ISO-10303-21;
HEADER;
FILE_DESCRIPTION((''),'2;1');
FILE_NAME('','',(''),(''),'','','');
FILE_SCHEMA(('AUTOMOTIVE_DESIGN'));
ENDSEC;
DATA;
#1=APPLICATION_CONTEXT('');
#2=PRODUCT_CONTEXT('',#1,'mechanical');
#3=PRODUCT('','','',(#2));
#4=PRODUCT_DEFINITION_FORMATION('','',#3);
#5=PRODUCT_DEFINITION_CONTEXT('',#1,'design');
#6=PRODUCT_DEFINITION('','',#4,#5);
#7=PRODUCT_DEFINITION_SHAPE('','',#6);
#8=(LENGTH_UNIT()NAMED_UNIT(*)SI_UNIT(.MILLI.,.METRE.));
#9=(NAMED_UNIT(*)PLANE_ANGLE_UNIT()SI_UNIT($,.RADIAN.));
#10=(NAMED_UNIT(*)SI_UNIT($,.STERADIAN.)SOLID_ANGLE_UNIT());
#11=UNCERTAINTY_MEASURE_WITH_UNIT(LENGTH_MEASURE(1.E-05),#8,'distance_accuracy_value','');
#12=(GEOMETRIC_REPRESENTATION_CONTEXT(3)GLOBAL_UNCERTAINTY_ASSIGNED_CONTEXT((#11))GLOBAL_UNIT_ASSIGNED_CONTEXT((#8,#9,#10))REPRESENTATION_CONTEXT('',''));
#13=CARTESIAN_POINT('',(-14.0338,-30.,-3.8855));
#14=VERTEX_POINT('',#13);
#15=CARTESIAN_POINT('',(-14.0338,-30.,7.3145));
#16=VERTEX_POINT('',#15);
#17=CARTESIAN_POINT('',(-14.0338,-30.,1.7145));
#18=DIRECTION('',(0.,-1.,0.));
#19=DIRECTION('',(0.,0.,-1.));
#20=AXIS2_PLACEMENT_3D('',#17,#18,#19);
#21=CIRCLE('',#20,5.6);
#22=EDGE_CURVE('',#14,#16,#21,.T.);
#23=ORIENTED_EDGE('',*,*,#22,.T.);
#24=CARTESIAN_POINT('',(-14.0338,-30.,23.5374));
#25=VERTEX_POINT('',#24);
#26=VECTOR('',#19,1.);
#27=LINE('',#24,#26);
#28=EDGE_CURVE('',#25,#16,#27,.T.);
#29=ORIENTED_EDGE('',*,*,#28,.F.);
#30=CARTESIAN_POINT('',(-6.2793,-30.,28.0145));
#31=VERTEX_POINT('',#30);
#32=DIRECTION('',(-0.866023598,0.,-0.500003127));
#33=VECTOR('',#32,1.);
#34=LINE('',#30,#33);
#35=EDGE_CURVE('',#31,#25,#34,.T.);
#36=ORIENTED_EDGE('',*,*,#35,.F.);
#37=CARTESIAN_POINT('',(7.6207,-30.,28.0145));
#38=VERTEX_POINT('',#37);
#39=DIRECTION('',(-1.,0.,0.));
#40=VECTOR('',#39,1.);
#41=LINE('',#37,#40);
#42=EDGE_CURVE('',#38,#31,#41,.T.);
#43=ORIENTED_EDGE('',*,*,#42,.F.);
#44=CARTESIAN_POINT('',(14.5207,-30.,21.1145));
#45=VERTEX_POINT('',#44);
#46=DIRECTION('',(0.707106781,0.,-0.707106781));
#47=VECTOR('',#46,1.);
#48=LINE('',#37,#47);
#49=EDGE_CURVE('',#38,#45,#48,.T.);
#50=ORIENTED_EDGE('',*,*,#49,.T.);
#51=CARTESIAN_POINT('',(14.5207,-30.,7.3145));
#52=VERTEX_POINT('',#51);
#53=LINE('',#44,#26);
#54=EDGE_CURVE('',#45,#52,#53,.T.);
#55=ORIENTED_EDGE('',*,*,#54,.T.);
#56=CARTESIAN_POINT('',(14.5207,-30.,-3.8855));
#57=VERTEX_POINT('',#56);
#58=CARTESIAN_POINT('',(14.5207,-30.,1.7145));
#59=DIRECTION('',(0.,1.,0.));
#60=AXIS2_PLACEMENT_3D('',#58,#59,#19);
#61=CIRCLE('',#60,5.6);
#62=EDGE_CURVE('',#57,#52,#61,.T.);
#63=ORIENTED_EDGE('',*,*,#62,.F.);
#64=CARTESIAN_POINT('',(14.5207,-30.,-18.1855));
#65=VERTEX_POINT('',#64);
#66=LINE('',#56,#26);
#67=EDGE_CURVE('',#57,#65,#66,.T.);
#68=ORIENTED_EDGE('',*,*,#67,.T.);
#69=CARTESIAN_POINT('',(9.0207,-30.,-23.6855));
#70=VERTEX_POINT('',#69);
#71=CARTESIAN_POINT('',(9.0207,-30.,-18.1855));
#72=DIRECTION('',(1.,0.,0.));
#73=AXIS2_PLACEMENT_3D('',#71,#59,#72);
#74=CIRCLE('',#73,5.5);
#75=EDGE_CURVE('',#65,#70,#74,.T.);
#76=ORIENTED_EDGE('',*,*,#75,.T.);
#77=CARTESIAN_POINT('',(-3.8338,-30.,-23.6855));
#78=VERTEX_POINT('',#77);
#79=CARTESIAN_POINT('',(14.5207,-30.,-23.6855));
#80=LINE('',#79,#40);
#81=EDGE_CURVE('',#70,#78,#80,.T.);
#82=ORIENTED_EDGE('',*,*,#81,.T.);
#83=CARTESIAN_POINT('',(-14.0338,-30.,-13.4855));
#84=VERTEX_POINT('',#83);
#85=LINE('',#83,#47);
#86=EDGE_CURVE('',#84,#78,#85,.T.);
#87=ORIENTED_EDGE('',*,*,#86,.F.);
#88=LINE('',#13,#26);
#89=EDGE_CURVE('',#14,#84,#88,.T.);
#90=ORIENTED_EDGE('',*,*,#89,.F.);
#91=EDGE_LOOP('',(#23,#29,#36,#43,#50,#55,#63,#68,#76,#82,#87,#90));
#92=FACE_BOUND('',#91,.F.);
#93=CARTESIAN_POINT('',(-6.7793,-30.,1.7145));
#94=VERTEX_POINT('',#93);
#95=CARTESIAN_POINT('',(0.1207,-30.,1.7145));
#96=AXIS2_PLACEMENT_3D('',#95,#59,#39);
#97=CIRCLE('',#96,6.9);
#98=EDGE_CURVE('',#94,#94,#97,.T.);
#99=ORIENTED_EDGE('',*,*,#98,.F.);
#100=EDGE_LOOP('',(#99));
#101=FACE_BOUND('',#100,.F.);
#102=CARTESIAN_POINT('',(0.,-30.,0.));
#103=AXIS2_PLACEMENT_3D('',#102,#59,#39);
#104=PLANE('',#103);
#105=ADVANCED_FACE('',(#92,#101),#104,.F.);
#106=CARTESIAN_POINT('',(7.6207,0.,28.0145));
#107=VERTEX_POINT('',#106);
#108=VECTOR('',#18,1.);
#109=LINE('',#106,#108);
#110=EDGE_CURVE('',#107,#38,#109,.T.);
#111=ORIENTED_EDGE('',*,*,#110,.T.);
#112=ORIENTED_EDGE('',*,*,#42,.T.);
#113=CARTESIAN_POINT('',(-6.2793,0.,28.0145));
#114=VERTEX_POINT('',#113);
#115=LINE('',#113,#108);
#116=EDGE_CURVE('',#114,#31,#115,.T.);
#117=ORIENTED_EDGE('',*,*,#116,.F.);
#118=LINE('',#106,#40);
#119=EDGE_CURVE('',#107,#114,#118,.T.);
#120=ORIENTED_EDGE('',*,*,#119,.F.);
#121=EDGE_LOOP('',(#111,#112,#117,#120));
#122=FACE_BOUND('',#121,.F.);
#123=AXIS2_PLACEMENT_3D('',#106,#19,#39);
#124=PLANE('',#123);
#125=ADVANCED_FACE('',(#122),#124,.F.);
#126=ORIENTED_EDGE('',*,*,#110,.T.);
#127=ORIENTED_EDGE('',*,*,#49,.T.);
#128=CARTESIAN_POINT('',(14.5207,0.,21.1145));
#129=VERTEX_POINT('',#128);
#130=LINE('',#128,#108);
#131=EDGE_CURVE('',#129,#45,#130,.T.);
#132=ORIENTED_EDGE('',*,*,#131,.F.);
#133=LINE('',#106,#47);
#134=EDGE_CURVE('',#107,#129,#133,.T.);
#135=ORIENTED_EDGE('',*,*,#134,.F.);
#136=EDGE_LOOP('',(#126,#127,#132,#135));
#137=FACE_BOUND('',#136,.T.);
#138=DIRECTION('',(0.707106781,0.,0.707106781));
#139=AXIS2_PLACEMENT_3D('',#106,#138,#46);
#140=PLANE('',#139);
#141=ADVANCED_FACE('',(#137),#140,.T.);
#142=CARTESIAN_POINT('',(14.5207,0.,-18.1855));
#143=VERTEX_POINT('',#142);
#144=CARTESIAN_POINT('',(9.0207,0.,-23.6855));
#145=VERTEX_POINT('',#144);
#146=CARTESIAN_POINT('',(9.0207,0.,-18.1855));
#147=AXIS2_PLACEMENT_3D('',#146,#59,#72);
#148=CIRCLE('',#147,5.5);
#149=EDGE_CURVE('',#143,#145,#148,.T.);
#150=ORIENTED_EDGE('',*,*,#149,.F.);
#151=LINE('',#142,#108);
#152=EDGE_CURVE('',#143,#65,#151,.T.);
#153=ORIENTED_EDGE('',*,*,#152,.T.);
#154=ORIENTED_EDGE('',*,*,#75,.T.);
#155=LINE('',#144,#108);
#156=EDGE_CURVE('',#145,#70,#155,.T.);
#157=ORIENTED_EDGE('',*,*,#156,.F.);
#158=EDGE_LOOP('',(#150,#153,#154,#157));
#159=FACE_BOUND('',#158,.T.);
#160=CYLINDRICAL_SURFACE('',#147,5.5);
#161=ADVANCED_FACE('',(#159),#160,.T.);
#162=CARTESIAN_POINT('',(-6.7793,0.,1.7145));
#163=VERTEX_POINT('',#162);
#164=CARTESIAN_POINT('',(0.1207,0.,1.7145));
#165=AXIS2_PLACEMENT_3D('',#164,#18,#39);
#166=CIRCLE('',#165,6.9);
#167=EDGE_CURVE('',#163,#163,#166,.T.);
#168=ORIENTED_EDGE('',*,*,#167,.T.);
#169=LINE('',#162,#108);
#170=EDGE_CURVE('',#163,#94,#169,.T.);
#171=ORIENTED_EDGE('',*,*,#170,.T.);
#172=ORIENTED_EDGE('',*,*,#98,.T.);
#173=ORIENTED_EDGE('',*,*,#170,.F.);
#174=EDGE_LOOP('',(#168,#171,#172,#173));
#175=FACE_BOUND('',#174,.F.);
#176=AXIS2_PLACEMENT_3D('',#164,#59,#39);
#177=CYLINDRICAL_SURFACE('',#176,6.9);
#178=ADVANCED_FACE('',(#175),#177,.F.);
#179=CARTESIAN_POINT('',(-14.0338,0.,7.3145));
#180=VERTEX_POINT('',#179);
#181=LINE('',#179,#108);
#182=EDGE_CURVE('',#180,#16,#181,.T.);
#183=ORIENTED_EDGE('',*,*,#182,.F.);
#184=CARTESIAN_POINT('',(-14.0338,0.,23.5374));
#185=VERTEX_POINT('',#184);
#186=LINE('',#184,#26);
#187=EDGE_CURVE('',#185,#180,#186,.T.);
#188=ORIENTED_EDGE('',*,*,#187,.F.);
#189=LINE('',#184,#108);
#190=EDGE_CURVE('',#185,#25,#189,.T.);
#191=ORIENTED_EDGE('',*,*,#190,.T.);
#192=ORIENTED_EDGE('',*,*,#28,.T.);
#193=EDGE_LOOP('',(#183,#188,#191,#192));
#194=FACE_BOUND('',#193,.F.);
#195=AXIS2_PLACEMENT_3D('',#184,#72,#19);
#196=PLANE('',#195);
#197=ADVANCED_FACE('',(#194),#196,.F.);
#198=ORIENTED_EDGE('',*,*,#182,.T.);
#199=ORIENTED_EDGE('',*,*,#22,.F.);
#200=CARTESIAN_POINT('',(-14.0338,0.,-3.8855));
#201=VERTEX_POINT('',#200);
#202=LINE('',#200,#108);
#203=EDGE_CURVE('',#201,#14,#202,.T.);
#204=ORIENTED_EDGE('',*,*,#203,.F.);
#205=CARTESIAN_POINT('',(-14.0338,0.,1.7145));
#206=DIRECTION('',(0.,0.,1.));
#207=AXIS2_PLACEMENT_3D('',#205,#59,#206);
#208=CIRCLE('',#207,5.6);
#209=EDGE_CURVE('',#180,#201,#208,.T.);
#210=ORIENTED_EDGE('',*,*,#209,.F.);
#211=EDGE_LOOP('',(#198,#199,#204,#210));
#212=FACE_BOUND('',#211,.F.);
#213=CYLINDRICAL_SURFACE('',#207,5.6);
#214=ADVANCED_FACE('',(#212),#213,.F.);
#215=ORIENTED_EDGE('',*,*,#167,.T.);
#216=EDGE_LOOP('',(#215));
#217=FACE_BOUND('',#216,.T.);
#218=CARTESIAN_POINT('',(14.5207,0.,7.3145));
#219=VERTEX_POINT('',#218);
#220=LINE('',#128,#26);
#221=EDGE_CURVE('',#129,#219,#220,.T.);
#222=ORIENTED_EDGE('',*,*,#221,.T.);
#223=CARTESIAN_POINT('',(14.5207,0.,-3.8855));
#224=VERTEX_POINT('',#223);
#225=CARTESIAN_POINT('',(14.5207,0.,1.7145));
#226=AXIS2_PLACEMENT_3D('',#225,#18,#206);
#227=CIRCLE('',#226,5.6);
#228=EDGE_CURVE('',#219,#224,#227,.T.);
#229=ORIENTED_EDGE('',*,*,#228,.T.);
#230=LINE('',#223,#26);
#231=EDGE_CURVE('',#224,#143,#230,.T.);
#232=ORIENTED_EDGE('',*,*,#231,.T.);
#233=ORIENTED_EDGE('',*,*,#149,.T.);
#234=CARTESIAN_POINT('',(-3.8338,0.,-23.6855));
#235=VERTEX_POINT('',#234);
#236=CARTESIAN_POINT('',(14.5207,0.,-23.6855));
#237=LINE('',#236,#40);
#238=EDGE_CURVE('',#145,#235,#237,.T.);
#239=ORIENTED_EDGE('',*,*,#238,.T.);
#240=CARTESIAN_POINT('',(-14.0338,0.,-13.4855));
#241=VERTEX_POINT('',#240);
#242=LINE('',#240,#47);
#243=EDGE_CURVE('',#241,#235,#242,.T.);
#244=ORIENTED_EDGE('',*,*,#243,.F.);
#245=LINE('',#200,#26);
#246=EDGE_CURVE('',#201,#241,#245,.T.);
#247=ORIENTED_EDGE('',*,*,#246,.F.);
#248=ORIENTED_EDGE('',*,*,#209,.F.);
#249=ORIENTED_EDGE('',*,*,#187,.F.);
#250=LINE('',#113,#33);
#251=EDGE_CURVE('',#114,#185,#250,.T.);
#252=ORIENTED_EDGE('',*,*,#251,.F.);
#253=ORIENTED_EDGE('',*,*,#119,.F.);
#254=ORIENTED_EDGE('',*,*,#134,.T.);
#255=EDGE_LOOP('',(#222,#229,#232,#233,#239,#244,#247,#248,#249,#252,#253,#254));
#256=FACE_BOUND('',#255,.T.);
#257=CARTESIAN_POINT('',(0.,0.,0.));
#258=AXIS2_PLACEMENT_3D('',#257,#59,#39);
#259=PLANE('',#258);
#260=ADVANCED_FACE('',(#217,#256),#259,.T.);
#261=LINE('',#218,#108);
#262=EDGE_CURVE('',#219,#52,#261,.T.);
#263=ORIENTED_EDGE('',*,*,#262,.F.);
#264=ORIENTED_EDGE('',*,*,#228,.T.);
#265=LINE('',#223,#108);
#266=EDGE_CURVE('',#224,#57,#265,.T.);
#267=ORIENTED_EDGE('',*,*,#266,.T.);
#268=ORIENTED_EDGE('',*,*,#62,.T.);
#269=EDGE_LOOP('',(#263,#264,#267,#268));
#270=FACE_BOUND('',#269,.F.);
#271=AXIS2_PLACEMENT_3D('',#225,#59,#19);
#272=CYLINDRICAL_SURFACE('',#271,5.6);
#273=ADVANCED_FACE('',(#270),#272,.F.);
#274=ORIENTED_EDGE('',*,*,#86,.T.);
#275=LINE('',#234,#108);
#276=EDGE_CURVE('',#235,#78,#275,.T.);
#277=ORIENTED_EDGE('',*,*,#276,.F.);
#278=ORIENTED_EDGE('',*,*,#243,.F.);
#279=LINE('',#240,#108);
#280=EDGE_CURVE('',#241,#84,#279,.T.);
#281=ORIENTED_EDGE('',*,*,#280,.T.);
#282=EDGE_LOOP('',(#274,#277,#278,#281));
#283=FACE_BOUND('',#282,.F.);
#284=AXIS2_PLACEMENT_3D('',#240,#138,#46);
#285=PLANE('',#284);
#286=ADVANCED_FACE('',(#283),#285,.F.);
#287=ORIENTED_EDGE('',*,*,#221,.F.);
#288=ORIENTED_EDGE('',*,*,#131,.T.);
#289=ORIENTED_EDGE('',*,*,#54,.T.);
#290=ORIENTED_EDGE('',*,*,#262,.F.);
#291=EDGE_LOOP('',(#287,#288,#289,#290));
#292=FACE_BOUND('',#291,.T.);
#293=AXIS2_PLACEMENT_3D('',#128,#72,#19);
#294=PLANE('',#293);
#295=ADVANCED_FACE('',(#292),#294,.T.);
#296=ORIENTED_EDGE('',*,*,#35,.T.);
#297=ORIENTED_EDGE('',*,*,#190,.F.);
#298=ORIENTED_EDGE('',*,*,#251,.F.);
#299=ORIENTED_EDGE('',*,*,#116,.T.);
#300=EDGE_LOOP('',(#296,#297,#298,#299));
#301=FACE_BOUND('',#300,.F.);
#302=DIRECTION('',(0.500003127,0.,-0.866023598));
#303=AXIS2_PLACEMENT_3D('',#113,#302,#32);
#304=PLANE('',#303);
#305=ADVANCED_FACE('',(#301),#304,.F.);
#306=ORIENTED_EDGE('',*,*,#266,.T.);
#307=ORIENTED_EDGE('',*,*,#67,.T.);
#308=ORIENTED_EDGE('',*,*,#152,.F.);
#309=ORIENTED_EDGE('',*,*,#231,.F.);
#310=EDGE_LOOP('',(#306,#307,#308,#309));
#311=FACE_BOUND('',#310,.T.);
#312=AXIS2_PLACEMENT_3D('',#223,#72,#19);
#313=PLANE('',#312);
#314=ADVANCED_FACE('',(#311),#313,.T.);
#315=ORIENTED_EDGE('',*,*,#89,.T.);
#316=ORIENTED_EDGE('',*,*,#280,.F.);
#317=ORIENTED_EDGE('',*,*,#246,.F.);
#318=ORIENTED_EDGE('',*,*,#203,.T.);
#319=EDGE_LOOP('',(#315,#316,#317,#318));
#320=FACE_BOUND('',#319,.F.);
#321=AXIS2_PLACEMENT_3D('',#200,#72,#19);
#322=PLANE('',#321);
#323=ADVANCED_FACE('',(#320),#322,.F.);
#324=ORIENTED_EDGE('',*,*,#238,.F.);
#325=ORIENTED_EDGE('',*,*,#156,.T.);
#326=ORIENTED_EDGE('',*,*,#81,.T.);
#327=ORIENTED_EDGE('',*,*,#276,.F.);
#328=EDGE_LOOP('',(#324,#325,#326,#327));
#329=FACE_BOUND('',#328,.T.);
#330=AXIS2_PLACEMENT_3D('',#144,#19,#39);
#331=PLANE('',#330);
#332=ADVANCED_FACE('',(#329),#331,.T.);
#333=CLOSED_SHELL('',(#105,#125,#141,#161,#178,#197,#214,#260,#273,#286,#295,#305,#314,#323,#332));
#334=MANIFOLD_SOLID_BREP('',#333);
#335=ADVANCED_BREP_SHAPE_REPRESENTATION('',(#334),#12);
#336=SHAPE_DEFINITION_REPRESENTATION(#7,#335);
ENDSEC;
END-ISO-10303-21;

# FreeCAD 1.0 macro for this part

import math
import FreeCAD as App
import Part
import Sketcher

V = App.Vector
Q = App.Units.Quantity

doc = App.newDocument("Part")
body = doc.addObject("PartDesign::Body", "Body")

sketch1 = body.newObject("Sketcher::SketchObject", "Sketch")
sketch1.AttachmentSupport = (doc.getObject("XZ_Plane"), [""])
sketch1.MapMode = "FlatFace"
sketch1.addGeometry([
    Part.LineSegment(V(-14, 7, 0), V(-14, 24, 0)),
    Part.LineSegment(V(-14, 24, 0), V(-6, 28, 0)),
    Part.LineSegment(V(-6, 28, 0), V(8, 28, 0)),
    Part.LineSegment(V(8, 28, 0), V(15, 21, 0)),
    Part.LineSegment(V(15, 21, 0), V(15, 7, 0)),
    Part.ArcOfCircle(Part.Circle(V(15, 2, 0), V(0, 0, 1), 6), math.radians(90), math.radians(270)),
    Part.LineSegment(V(15, -4, 0), V(15, -18, 0)),
    Part.ArcOfCircle(Part.Circle(V(9, -18, 0), V(0, 0, 1), 6), math.radians(-90), math.radians(0)),
    Part.LineSegment(V(9, -24, 0), V(-4, -24, 0)),
    Part.LineSegment(V(-4, -24, 0), V(-14, -13, 0)),
    Part.LineSegment(V(-14, -13, 0), V(-14, -4, 0)),
    Part.ArcOfCircle(Part.Circle(V(-14, 2, 0), V(0, 0, 1), 6), math.radians(-90), math.radians(90)),
    Part.Circle(V(0, 2, 0), V(0, 0, 1), 7),
], False)
sketch1.addConstraint([
    Sketcher.Constraint("Coincident", 0, 2, 1, 1),
    Sketcher.Constraint("Coincident", 1, 2, 2, 1),
    Sketcher.Constraint("Coincident", 2, 2, 3, 1),
    Sketcher.Constraint("Coincident", 3, 2, 4, 1),
    Sketcher.Constraint("Coincident", 4, 2, 5, 1),
    Sketcher.Constraint("Coincident", 5, 2, 6, 1),
    Sketcher.Constraint("Tangent", 6, 2, 7, 2),
    Sketcher.Constraint("Tangent", 7, 1, 8, 1),
    Sketcher.Constraint("Coincident", 8, 2, 9, 1),
    Sketcher.Constraint("Coincident", 9, 2, 10, 1),
    Sketcher.Constraint("Coincident", 10, 2, 11, 1),
    Sketcher.Constraint("Coincident", 11, 2, 0, 1),
    Sketcher.Constraint("Vertical", 0),
    Sketcher.Constraint("Horizontal", 2),
    Sketcher.Constraint("Vertical", 4),
    Sketcher.Constraint("Vertical", 6),
    Sketcher.Constraint("Horizontal", 8),
    Sketcher.Constraint("Vertical", 10),
    Sketcher.Constraint("Equal", 5, 11),
    Sketcher.Constraint("Parallel", 3, 9),
    Sketcher.Constraint("Horizontal", 5, 3, 11, 3),
    Sketcher.Constraint("Horizontal", 11, 3, 12, 3),
    Sketcher.Constraint("Vertical", 11, 3, 0, 2),
    Sketcher.Constraint("Vertical", 5, 3, 3, 2),
    Sketcher.Constraint("Vertical", 4, 2, 5, 2),
    Sketcher.Constraint("Vertical", 0, 2, 9, 2),
    Sketcher.Constraint("Diameter", 12, Q("13.8 mm")),
    Sketcher.Constraint("Radius", 7, Q("5.5 mm")),
    Sketcher.Constraint("Angle", 1, Q("30.0002 deg")),
    Sketcher.Constraint("Angle", 3, Q("-45 deg")),
    Sketcher.Constraint("DistanceX", 2, 1, 2, 2, Q("13.9 mm")),
    Sketcher.Constraint("DistanceY", 4, 2, 4, 1, Q("13.8 mm")),
    Sketcher.Constraint("Radius", 5, Q("5.6 mm")),
    Sketcher.Constraint("DistanceX", 2, 2, 5, 3, Q("6.9 mm")),
    Sketcher.Constraint("DistanceY", 6, 2, 6, 1, Q("14.3 mm")),
    Sketcher.Constraint("DistanceY", 10, 1, 10, 2, Q("9.6 mm")),
    Sketcher.Constraint("DistanceX", 12, 3, 5, 3, Q("14.4 mm")),
    Sketcher.Constraint("DistanceY", 0, 1, 0, 2, Q("16.223 mm")),
    Sketcher.Constraint("DistanceX", -1, 1, 5, 3, Q("14.5207 mm")),
    Sketcher.Constraint("DistanceY", -1, 1, 5, 3, Q("1.7145 mm")),
])
pad1 = body.newObject("PartDesign::Pad", "Pad")
pad1.Profile = sketch1
pad1.Length = 30

doc.recompute()
